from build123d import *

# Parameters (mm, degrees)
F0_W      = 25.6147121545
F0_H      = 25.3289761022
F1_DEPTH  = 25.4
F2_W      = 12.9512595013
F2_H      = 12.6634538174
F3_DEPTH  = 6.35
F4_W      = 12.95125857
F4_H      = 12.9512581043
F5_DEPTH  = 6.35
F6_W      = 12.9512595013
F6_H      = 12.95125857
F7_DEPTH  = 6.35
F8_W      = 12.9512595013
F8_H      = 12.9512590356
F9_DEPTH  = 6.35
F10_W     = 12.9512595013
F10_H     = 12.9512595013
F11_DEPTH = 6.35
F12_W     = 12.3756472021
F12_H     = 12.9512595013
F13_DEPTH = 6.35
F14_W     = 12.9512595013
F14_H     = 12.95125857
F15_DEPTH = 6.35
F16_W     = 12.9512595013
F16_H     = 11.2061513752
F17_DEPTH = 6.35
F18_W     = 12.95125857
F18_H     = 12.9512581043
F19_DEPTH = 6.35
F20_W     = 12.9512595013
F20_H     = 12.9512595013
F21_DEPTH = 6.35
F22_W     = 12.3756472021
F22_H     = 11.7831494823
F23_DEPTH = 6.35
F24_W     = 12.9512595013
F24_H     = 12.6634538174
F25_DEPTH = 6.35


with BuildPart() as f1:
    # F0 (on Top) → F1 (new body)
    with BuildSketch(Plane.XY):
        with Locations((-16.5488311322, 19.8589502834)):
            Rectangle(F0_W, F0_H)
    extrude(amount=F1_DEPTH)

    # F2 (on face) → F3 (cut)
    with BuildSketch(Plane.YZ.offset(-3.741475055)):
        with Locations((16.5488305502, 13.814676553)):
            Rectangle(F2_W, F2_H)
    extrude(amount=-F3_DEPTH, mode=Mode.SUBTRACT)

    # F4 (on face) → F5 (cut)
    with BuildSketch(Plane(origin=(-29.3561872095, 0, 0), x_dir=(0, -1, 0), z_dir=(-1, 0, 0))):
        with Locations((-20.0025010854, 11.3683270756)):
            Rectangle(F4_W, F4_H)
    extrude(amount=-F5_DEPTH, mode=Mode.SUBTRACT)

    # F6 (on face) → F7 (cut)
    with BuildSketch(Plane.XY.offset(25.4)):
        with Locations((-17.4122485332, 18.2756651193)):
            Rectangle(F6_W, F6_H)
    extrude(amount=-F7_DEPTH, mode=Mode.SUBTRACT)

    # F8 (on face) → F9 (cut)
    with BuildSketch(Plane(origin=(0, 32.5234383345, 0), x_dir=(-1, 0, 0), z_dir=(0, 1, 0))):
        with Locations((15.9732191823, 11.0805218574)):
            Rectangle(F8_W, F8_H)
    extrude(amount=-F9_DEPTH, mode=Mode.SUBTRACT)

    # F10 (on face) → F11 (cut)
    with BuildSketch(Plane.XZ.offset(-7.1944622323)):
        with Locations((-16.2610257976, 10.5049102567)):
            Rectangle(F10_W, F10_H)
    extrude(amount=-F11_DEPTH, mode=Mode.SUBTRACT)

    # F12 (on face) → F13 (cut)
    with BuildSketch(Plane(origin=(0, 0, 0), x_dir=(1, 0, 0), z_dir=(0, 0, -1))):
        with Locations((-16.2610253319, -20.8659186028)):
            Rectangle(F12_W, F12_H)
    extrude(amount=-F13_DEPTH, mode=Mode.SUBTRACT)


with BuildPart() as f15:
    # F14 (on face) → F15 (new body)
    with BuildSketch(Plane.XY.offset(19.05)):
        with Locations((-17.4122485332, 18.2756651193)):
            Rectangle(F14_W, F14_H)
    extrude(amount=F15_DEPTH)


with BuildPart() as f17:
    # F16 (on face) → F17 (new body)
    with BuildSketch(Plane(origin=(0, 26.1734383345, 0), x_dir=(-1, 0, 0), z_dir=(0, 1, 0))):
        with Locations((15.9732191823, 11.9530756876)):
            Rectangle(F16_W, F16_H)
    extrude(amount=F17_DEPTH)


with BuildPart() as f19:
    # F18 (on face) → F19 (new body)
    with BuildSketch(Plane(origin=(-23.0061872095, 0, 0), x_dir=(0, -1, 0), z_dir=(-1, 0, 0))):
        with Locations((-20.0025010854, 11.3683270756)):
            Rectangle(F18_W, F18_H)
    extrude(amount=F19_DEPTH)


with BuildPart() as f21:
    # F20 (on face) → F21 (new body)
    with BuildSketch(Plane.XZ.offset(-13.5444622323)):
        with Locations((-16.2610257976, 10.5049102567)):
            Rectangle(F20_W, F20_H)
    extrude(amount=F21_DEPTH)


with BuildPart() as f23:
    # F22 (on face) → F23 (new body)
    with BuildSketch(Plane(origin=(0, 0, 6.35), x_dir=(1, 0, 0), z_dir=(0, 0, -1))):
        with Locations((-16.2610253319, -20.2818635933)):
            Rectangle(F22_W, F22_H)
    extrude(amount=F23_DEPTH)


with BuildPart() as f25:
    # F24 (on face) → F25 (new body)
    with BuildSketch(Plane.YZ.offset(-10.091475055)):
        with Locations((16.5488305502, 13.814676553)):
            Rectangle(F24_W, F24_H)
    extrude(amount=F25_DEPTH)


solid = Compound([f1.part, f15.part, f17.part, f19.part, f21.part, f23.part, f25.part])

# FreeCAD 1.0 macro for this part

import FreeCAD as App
import Part
import Sketcher
Q = App.Units.Quantity


def add_polygon(sketch, points):
    """Adds a closed chain of lines whose ends are joined by coincident constraints."""
    first, n = sketch.GeometryCount, len(points)
    for a, b in zip(points, points[1:] + points[:1]):
        sketch.addGeometry(Part.LineSegment(App.Vector(*a, 0), App.Vector(*b, 0)), False)
    for i in range(n):
        sketch.addConstraint(Sketcher.Constraint("Coincident", first + i, 2, first + (i + 1) % n, 1))

doc = App.newDocument("Part")
body = doc.addObject("PartDesign::Body", "Body")

# Sketch on XY plane
sketch1 = body.newObject("Sketcher::SketchObject", "Sketch")
sketch1.AttachmentSupport = (doc.getObject("XY_Plane"), [""])
sketch1.MapMode = "FlatFace"
add_polygon(sketch1, [(-29.356187, 32.523438), (-29.356187, 7.194462), (-3.741475, 7.194462), (-3.741475, 32.523438)])  # lines 0-3
sketch1.addConstraint([
    Sketcher.Constraint("Vertical", 0),
    Sketcher.Constraint("Horizontal", 1),
    Sketcher.Constraint("Vertical", 2),
    Sketcher.Constraint("Horizontal", 3),
    Sketcher.Constraint("DistanceX", 1, 1, 1, 2, 25.614712),
    Sketcher.Constraint("DistanceY", 0, 2, 0, 1, 25.328976),
    Sketcher.Constraint("DistanceY", -1, 1, 2, 2, 32.523438),
    Sketcher.Constraint("DistanceX", 0, 2, -1, 1, 29.356187),
])
pad1 = body.newObject("PartDesign::Pad", "Pad")
pad1.Profile = sketch1
pad1.Length = Q("1 in")

# Sketch on YZ plane
sketch2 = body.newObject("Sketcher::SketchObject", "Sketch001")
sketch2.AttachmentSupport = (doc.getObject("YZ_Plane"), [""])
sketch2.MapMode = "FlatFace"
sketch2.AttachmentOffset = App.Placement(App.Vector(0, 0, -3.741475), App.Rotation())
add_polygon(sketch2, [(10.073201, 20.146403), (10.073201, 7.48295), (23.02446, 7.48295), (23.02446, 20.146403)])  # lines 0-3
sketch2.addConstraint([
    Sketcher.Constraint("Vertical", 0),
    Sketcher.Constraint("Horizontal", 1),
    Sketcher.Constraint("Vertical", 2),
    Sketcher.Constraint("Horizontal", 3),
    Sketcher.Constraint("DistanceX", 1, 1, 1, 2, 12.95126),
    Sketcher.Constraint("DistanceX", -1, 1, 0, 2, 10.073201),
    Sketcher.Constraint("DistanceY", 0, 2, 0, 1, 12.663454),
    Sketcher.Constraint("DistanceY", -1, 1, 0, 2, 7.48295),
])
pocket1 = body.newObject("PartDesign::Pocket", "Pocket")
pocket1.Profile = sketch2
pocket1.Length = Q("0.25 in")

# Sketch on YZ plane
sketch3 = body.newObject("Sketcher::SketchObject", "Sketch002")
sketch3.AttachmentSupport = (doc.getObject("YZ_Plane"), [""])
sketch3.MapMode = "FlatFace"
sketch3.AttachmentOffset = App.Placement(App.Vector(0, 0, -29.356187), App.Rotation())
add_polygon(sketch3, [(26.47813, 17.843956), (26.47813, 4.892698), (13.526872, 4.892698), (13.526872, 17.843956)])  # lines 0-3
sketch3.addConstraint([
    Sketcher.Constraint("Vertical", 0),
    Sketcher.Constraint("Horizontal", 1),
    Sketcher.Constraint("Vertical", 2),
    Sketcher.Constraint("Horizontal", 3),
    Sketcher.Constraint("Equal", 3, 0),
    Sketcher.Constraint("DistanceX", 1, 2, 1, 1, 12.951259),
    Sketcher.Constraint("DistanceY", -1, 1, 0, 2, 4.892698),
    Sketcher.Constraint("DistanceX", -1, 1, 0, 2, 26.47813),
])
pocket2 = body.newObject("PartDesign::Pocket", "Pocket001")
pocket2.Profile = sketch3
pocket2.Length = Q("0.25 in")
pocket2.Reversed = True

# Sketch on XY plane
sketch4 = body.newObject("Sketcher::SketchObject", "Sketch003")
sketch4.AttachmentSupport = (doc.getObject("XY_Plane"), [""])
sketch4.MapMode = "FlatFace"
sketch4.AttachmentOffset = App.Placement(App.Vector(0, 0, 1 * 25.4), App.Rotation())
add_polygon(sketch4, [(-23.887878, 24.751294), (-23.887878, 11.800036), (-10.936619, 11.800036), (-10.936619, 24.751294)])  # lines 0-3
sketch4.addConstraint([
    Sketcher.Constraint("Vertical", 0),
    Sketcher.Constraint("Horizontal", 1),
    Sketcher.Constraint("Vertical", 2),
    Sketcher.Constraint("Horizontal", 3),
    Sketcher.Constraint("Equal", 3, 0),
    Sketcher.Constraint("DistanceX", 1, 1, 1, 2, 12.95126),
    Sketcher.Constraint("DistanceX", 0, 2, -1, 1, 23.887878),
    Sketcher.Constraint("DistanceY", -1, 1, 0, 2, 11.800036),
])
pocket3 = body.newObject("PartDesign::Pocket", "Pocket002")
pocket3.Profile = sketch4
pocket3.Length = Q("0.25 in")

# Sketch on XZ plane
sketch5 = body.newObject("Sketcher::SketchObject", "Sketch004")
sketch5.AttachmentSupport = (doc.getObject("XZ_Plane"), [""])
sketch5.MapMode = "FlatFace"
sketch5.AttachmentOffset = App.Placement(App.Vector(0, 0, -32.523438), App.Rotation())
add_polygon(sketch5, [(-9.497589, 17.556151), (-9.497589, 4.604892), (-22.448849, 4.604892), (-22.448849, 17.556151)])  # lines 0-3
sketch5.addConstraint([
    Sketcher.Constraint("Vertical", 0),
    Sketcher.Constraint("Horizontal", 1),
    Sketcher.Constraint("Vertical", 2),
    Sketcher.Constraint("Horizontal", 3),
    Sketcher.Constraint("Equal", 3, 0),
    Sketcher.Constraint("DistanceX", 1, 2, 1, 1, 12.95126),
    Sketcher.Constraint("DistanceX", 0, 2, -1, 1, 9.497589),
    Sketcher.Constraint("DistanceY", -1, 1, 2, 2, 17.556151),
])
pocket4 = body.newObject("PartDesign::Pocket", "Pocket003")
pocket4.Profile = sketch5
pocket4.Length = Q("0.25 in")
pocket4.Reversed = True

# Sketch on XZ plane
sketch6 = body.newObject("Sketcher::SketchObject", "Sketch005")
sketch6.AttachmentSupport = (doc.getObject("XZ_Plane"), [""])
sketch6.MapMode = "FlatFace"
sketch6.AttachmentOffset = App.Placement(App.Vector(0, 0, -7.194462), App.Rotation())
add_polygon(sketch6, [(-22.736656, 16.98054), (-22.736656, 4.029281), (-9.785396, 4.029281), (-9.785396, 16.98054)])  # lines 0-3
sketch6.addConstraint([
    Sketcher.Constraint("Vertical", 0),
    Sketcher.Constraint("Horizontal", 1),
    Sketcher.Constraint("Vertical", 2),
    Sketcher.Constraint("Horizontal", 3),
    Sketcher.Constraint("Equal", 3, 0),
    Sketcher.Constraint("DistanceX", 1, 1, 1, 2, 12.95126),
    Sketcher.Constraint("DistanceY", -1, 1, 0, 2, 4.029281),
    Sketcher.Constraint("DistanceX", 0, 2, -1, 1, 22.736656),
])
pocket5 = body.newObject("PartDesign::Pocket", "Pocket004")
pocket5.Profile = sketch6
pocket5.Length = Q("0.25 in")

# Sketch on XY plane
sketch7 = body.newObject("Sketcher::SketchObject", "Sketch006")
sketch7.AttachmentSupport = (doc.getObject("XY_Plane"), [""])
sketch7.MapMode = "FlatFace"
add_polygon(sketch7, [(-22.448849, 14.390289), (-22.448849, 27.341548), (-10.073202, 27.341548), (-10.073202, 14.390289)])  # lines 0-3
sketch7.addConstraint([
    Sketcher.Constraint("Vertical", 0),
    Sketcher.Constraint("Horizontal", 1),
    Sketcher.Constraint("Vertical", 2),
    Sketcher.Constraint("Horizontal", 3),
    Sketcher.Constraint("DistanceY", 0, 1, 0, 2, 12.95126),
    Sketcher.Constraint("DistanceX", 1, 2, -1, 1, 10.073202),
    Sketcher.Constraint("DistanceX", 1, 1, 1, 2, 12.375647),
    Sketcher.Constraint("DistanceY", -1, 1, 0, 2, 27.341548),
])
pocket6 = body.newObject("PartDesign::Pocket", "Pocket005")
pocket6.Profile = sketch7
pocket6.Length = Q("0.25 in")
pocket6.Reversed = True
body2 = doc.addObject("PartDesign::Body", "Body001")

# Sketch on XY plane
sketch8 = body2.newObject("Sketcher::SketchObject", "Sketch007")
sketch8.AttachmentSupport = (doc.getObject("XY_Plane001"), [""])
sketch8.MapMode = "FlatFace"
sketch8.AttachmentOffset = App.Placement(App.Vector(0, 0, 0.75 * 25.4), App.Rotation())
add_polygon(sketch8, [(-23.887878, 24.751294), (-23.887878, 11.800036), (-10.936619, 11.800036), (-10.936619, 24.751294)])  # lines 0-3
sketch8.addConstraint([
    Sketcher.Constraint("Vertical", 0),
    Sketcher.Constraint("Horizontal", 1),
    Sketcher.Constraint("Vertical", 2),
    Sketcher.Constraint("Horizontal", 3),
    Sketcher.Constraint("Equal", 3, 0),
    Sketcher.Constraint("DistanceX", 1, 1, 1, 2, 12.95126),
    Sketcher.Constraint("DistanceX", 0, 2, -1, 1, 23.887878),
    Sketcher.Constraint("DistanceY", -1, 1, 0, 2, 11.800036),
])
pad2 = body2.newObject("PartDesign::Pad", "Pad001")
pad2.Profile = sketch8
pad2.Length = Q("0.25 in")
body3 = doc.addObject("PartDesign::Body", "Body002")

# Sketch on XZ plane
sketch9 = body3.newObject("Sketcher::SketchObject", "Sketch008")
sketch9.AttachmentSupport = (doc.getObject("XZ_Plane002"), [""])
sketch9.MapMode = "FlatFace"
sketch9.AttachmentOffset = App.Placement(App.Vector(0, 0, -26.173438), App.Rotation())
add_polygon(sketch9, [(-9.497589, 17.556151), (-9.497589, 6.35), (-22.448849, 6.35), (-22.448849, 17.556151)])  # lines 0-3
sketch9.addConstraint([
    Sketcher.Constraint("Vertical", 0),
    Sketcher.Constraint("Horizontal", 1),
    Sketcher.Constraint("Vertical", 2),
    Sketcher.Constraint("Horizontal", 3),
    Sketcher.Constraint("DistanceY", -1, 1, 0, 2, Q("0.25 in")),
    Sketcher.Constraint("DistanceX", 1, 2, 1, 1, 12.95126),
    Sketcher.Constraint("DistanceY", 0, 2, 0, 1, 11.206151),
    Sketcher.Constraint("DistanceX", 0, 2, -1, 1, 9.497589),
])
pad3 = body3.newObject("PartDesign::Pad", "Pad002")
pad3.Profile = sketch9
pad3.Length = Q("0.25 in")
pad3.Reversed = True
body4 = doc.addObject("PartDesign::Body", "Body003")

# Sketch on YZ plane
sketch10 = body4.newObject("Sketcher::SketchObject", "Sketch009")
sketch10.AttachmentSupport = (doc.getObject("YZ_Plane003"), [""])
sketch10.MapMode = "FlatFace"
sketch10.AttachmentOffset = App.Placement(App.Vector(0, 0, -23.006187), App.Rotation())
add_polygon(sketch10, [(26.47813, 17.843956), (26.47813, 4.892698), (13.526872, 4.892698), (13.526872, 17.843956)])  # lines 0-3
sketch10.addConstraint([
    Sketcher.Constraint("Vertical", 0),
    Sketcher.Constraint("Horizontal", 1),
    Sketcher.Constraint("Vertical", 2),
    Sketcher.Constraint("Horizontal", 3),
    Sketcher.Constraint("Equal", 3, 0),
    Sketcher.Constraint("DistanceX", 1, 2, 1, 1, 12.951259),
    Sketcher.Constraint("DistanceY", -1, 1, 0, 2, 4.892698),
    Sketcher.Constraint("DistanceX", -1, 1, 0, 2, 26.47813),
])
pad4 = body4.newObject("PartDesign::Pad", "Pad003")
pad4.Profile = sketch10
pad4.Length = Q("0.25 in")
pad4.Reversed = True
body5 = doc.addObject("PartDesign::Body", "Body004")

# Sketch on XZ plane
sketch11 = body5.newObject("Sketcher::SketchObject", "Sketch010")
sketch11.AttachmentSupport = (doc.getObject("XZ_Plane004"), [""])
sketch11.MapMode = "FlatFace"
sketch11.AttachmentOffset = App.Placement(App.Vector(0, 0, -13.544462), App.Rotation())
add_polygon(sketch11, [(-22.736656, 16.98054), (-22.736656, 4.029281), (-9.785396, 4.029281), (-9.785396, 16.98054)])  # lines 0-3
sketch11.addConstraint([
    Sketcher.Constraint("Vertical", 0),
    Sketcher.Constraint("Horizontal", 1),
    Sketcher.Constraint("Vertical", 2),
    Sketcher.Constraint("Horizontal", 3),
    Sketcher.Constraint("Equal", 3, 0),
    Sketcher.Constraint("DistanceX", 1, 1, 1, 2, 12.95126),
    Sketcher.Constraint("DistanceY", -1, 1, 0, 2, 4.029281),
    Sketcher.Constraint("DistanceX", 0, 2, -1, 1, 22.736656),
])
pad5 = body5.newObject("PartDesign::Pad", "Pad004")
pad5.Profile = sketch11
pad5.Length = Q("0.25 in")
body6 = doc.addObject("PartDesign::Body", "Body005")

# Sketch on XY plane
sketch12 = body6.newObject("Sketcher::SketchObject", "Sketch011")
sketch12.AttachmentSupport = (doc.getObject("XY_Plane005"), [""])
sketch12.MapMode = "FlatFace"
sketch12.AttachmentOffset = App.Placement(App.Vector(0, 0, 0.25 * 25.4), App.Rotation())
add_polygon(sketch12, [(-22.448849, 14.390289), (-22.448849, 26.173438), (-10.073202, 26.173438), (-10.073202, 14.390289)])  # lines 0-3
sketch12.addConstraint([
    Sketcher.Constraint("Vertical", 0),
    Sketcher.Constraint("Horizontal", 1),
    Sketcher.Constraint("Vertical", 2),
    Sketcher.Constraint("Horizontal", 3),
    Sketcher.Constraint("DistanceY", 0, 1, 0, 2, 11.783149),
    Sketcher.Constraint("DistanceX", 1, 2, -1, 1, 10.073202),
    Sketcher.Constraint("DistanceX", 1, 1, 1, 2, 12.375647),
    Sketcher.Constraint("DistanceY", -1, 1, 0, 2, 26.173438),
])
pad6 = body6.newObject("PartDesign::Pad", "Pad005")
pad6.Profile = sketch12
pad6.Length = Q("0.25 in")
pad6.Reversed = True
body7 = doc.addObject("PartDesign::Body", "Body006")

# Sketch on YZ plane
sketch13 = body7.newObject("Sketcher::SketchObject", "Sketch012")
sketch13.AttachmentSupport = (doc.getObject("YZ_Plane006"), [""])
sketch13.MapMode = "FlatFace"
sketch13.AttachmentOffset = App.Placement(App.Vector(0, 0, -10.091475), App.Rotation())
add_polygon(sketch13, [(10.073201, 20.146403), (10.073201, 7.48295), (23.02446, 7.48295), (23.02446, 20.146403)])  # lines 0-3
sketch13.addConstraint([
    Sketcher.Constraint("Vertical", 0),
    Sketcher.Constraint("Horizontal", 1),
    Sketcher.Constraint("Vertical", 2),
    Sketcher.Constraint("Horizontal", 3),
    Sketcher.Constraint("DistanceX", 1, 1, 1, 2, 12.95126),
    Sketcher.Constraint("DistanceX", -1, 1, 0, 2, 10.073201),
    Sketcher.Constraint("DistanceY", 0, 2, 0, 1, 12.663454),
    Sketcher.Constraint("DistanceY", -1, 1, 0, 2, 7.48295),
])
pad7 = body7.newObject("PartDesign::Pad", "Pad006")
pad7.Profile = sketch13
pad7.Length = Q("0.25 in")

doc.recompute()
